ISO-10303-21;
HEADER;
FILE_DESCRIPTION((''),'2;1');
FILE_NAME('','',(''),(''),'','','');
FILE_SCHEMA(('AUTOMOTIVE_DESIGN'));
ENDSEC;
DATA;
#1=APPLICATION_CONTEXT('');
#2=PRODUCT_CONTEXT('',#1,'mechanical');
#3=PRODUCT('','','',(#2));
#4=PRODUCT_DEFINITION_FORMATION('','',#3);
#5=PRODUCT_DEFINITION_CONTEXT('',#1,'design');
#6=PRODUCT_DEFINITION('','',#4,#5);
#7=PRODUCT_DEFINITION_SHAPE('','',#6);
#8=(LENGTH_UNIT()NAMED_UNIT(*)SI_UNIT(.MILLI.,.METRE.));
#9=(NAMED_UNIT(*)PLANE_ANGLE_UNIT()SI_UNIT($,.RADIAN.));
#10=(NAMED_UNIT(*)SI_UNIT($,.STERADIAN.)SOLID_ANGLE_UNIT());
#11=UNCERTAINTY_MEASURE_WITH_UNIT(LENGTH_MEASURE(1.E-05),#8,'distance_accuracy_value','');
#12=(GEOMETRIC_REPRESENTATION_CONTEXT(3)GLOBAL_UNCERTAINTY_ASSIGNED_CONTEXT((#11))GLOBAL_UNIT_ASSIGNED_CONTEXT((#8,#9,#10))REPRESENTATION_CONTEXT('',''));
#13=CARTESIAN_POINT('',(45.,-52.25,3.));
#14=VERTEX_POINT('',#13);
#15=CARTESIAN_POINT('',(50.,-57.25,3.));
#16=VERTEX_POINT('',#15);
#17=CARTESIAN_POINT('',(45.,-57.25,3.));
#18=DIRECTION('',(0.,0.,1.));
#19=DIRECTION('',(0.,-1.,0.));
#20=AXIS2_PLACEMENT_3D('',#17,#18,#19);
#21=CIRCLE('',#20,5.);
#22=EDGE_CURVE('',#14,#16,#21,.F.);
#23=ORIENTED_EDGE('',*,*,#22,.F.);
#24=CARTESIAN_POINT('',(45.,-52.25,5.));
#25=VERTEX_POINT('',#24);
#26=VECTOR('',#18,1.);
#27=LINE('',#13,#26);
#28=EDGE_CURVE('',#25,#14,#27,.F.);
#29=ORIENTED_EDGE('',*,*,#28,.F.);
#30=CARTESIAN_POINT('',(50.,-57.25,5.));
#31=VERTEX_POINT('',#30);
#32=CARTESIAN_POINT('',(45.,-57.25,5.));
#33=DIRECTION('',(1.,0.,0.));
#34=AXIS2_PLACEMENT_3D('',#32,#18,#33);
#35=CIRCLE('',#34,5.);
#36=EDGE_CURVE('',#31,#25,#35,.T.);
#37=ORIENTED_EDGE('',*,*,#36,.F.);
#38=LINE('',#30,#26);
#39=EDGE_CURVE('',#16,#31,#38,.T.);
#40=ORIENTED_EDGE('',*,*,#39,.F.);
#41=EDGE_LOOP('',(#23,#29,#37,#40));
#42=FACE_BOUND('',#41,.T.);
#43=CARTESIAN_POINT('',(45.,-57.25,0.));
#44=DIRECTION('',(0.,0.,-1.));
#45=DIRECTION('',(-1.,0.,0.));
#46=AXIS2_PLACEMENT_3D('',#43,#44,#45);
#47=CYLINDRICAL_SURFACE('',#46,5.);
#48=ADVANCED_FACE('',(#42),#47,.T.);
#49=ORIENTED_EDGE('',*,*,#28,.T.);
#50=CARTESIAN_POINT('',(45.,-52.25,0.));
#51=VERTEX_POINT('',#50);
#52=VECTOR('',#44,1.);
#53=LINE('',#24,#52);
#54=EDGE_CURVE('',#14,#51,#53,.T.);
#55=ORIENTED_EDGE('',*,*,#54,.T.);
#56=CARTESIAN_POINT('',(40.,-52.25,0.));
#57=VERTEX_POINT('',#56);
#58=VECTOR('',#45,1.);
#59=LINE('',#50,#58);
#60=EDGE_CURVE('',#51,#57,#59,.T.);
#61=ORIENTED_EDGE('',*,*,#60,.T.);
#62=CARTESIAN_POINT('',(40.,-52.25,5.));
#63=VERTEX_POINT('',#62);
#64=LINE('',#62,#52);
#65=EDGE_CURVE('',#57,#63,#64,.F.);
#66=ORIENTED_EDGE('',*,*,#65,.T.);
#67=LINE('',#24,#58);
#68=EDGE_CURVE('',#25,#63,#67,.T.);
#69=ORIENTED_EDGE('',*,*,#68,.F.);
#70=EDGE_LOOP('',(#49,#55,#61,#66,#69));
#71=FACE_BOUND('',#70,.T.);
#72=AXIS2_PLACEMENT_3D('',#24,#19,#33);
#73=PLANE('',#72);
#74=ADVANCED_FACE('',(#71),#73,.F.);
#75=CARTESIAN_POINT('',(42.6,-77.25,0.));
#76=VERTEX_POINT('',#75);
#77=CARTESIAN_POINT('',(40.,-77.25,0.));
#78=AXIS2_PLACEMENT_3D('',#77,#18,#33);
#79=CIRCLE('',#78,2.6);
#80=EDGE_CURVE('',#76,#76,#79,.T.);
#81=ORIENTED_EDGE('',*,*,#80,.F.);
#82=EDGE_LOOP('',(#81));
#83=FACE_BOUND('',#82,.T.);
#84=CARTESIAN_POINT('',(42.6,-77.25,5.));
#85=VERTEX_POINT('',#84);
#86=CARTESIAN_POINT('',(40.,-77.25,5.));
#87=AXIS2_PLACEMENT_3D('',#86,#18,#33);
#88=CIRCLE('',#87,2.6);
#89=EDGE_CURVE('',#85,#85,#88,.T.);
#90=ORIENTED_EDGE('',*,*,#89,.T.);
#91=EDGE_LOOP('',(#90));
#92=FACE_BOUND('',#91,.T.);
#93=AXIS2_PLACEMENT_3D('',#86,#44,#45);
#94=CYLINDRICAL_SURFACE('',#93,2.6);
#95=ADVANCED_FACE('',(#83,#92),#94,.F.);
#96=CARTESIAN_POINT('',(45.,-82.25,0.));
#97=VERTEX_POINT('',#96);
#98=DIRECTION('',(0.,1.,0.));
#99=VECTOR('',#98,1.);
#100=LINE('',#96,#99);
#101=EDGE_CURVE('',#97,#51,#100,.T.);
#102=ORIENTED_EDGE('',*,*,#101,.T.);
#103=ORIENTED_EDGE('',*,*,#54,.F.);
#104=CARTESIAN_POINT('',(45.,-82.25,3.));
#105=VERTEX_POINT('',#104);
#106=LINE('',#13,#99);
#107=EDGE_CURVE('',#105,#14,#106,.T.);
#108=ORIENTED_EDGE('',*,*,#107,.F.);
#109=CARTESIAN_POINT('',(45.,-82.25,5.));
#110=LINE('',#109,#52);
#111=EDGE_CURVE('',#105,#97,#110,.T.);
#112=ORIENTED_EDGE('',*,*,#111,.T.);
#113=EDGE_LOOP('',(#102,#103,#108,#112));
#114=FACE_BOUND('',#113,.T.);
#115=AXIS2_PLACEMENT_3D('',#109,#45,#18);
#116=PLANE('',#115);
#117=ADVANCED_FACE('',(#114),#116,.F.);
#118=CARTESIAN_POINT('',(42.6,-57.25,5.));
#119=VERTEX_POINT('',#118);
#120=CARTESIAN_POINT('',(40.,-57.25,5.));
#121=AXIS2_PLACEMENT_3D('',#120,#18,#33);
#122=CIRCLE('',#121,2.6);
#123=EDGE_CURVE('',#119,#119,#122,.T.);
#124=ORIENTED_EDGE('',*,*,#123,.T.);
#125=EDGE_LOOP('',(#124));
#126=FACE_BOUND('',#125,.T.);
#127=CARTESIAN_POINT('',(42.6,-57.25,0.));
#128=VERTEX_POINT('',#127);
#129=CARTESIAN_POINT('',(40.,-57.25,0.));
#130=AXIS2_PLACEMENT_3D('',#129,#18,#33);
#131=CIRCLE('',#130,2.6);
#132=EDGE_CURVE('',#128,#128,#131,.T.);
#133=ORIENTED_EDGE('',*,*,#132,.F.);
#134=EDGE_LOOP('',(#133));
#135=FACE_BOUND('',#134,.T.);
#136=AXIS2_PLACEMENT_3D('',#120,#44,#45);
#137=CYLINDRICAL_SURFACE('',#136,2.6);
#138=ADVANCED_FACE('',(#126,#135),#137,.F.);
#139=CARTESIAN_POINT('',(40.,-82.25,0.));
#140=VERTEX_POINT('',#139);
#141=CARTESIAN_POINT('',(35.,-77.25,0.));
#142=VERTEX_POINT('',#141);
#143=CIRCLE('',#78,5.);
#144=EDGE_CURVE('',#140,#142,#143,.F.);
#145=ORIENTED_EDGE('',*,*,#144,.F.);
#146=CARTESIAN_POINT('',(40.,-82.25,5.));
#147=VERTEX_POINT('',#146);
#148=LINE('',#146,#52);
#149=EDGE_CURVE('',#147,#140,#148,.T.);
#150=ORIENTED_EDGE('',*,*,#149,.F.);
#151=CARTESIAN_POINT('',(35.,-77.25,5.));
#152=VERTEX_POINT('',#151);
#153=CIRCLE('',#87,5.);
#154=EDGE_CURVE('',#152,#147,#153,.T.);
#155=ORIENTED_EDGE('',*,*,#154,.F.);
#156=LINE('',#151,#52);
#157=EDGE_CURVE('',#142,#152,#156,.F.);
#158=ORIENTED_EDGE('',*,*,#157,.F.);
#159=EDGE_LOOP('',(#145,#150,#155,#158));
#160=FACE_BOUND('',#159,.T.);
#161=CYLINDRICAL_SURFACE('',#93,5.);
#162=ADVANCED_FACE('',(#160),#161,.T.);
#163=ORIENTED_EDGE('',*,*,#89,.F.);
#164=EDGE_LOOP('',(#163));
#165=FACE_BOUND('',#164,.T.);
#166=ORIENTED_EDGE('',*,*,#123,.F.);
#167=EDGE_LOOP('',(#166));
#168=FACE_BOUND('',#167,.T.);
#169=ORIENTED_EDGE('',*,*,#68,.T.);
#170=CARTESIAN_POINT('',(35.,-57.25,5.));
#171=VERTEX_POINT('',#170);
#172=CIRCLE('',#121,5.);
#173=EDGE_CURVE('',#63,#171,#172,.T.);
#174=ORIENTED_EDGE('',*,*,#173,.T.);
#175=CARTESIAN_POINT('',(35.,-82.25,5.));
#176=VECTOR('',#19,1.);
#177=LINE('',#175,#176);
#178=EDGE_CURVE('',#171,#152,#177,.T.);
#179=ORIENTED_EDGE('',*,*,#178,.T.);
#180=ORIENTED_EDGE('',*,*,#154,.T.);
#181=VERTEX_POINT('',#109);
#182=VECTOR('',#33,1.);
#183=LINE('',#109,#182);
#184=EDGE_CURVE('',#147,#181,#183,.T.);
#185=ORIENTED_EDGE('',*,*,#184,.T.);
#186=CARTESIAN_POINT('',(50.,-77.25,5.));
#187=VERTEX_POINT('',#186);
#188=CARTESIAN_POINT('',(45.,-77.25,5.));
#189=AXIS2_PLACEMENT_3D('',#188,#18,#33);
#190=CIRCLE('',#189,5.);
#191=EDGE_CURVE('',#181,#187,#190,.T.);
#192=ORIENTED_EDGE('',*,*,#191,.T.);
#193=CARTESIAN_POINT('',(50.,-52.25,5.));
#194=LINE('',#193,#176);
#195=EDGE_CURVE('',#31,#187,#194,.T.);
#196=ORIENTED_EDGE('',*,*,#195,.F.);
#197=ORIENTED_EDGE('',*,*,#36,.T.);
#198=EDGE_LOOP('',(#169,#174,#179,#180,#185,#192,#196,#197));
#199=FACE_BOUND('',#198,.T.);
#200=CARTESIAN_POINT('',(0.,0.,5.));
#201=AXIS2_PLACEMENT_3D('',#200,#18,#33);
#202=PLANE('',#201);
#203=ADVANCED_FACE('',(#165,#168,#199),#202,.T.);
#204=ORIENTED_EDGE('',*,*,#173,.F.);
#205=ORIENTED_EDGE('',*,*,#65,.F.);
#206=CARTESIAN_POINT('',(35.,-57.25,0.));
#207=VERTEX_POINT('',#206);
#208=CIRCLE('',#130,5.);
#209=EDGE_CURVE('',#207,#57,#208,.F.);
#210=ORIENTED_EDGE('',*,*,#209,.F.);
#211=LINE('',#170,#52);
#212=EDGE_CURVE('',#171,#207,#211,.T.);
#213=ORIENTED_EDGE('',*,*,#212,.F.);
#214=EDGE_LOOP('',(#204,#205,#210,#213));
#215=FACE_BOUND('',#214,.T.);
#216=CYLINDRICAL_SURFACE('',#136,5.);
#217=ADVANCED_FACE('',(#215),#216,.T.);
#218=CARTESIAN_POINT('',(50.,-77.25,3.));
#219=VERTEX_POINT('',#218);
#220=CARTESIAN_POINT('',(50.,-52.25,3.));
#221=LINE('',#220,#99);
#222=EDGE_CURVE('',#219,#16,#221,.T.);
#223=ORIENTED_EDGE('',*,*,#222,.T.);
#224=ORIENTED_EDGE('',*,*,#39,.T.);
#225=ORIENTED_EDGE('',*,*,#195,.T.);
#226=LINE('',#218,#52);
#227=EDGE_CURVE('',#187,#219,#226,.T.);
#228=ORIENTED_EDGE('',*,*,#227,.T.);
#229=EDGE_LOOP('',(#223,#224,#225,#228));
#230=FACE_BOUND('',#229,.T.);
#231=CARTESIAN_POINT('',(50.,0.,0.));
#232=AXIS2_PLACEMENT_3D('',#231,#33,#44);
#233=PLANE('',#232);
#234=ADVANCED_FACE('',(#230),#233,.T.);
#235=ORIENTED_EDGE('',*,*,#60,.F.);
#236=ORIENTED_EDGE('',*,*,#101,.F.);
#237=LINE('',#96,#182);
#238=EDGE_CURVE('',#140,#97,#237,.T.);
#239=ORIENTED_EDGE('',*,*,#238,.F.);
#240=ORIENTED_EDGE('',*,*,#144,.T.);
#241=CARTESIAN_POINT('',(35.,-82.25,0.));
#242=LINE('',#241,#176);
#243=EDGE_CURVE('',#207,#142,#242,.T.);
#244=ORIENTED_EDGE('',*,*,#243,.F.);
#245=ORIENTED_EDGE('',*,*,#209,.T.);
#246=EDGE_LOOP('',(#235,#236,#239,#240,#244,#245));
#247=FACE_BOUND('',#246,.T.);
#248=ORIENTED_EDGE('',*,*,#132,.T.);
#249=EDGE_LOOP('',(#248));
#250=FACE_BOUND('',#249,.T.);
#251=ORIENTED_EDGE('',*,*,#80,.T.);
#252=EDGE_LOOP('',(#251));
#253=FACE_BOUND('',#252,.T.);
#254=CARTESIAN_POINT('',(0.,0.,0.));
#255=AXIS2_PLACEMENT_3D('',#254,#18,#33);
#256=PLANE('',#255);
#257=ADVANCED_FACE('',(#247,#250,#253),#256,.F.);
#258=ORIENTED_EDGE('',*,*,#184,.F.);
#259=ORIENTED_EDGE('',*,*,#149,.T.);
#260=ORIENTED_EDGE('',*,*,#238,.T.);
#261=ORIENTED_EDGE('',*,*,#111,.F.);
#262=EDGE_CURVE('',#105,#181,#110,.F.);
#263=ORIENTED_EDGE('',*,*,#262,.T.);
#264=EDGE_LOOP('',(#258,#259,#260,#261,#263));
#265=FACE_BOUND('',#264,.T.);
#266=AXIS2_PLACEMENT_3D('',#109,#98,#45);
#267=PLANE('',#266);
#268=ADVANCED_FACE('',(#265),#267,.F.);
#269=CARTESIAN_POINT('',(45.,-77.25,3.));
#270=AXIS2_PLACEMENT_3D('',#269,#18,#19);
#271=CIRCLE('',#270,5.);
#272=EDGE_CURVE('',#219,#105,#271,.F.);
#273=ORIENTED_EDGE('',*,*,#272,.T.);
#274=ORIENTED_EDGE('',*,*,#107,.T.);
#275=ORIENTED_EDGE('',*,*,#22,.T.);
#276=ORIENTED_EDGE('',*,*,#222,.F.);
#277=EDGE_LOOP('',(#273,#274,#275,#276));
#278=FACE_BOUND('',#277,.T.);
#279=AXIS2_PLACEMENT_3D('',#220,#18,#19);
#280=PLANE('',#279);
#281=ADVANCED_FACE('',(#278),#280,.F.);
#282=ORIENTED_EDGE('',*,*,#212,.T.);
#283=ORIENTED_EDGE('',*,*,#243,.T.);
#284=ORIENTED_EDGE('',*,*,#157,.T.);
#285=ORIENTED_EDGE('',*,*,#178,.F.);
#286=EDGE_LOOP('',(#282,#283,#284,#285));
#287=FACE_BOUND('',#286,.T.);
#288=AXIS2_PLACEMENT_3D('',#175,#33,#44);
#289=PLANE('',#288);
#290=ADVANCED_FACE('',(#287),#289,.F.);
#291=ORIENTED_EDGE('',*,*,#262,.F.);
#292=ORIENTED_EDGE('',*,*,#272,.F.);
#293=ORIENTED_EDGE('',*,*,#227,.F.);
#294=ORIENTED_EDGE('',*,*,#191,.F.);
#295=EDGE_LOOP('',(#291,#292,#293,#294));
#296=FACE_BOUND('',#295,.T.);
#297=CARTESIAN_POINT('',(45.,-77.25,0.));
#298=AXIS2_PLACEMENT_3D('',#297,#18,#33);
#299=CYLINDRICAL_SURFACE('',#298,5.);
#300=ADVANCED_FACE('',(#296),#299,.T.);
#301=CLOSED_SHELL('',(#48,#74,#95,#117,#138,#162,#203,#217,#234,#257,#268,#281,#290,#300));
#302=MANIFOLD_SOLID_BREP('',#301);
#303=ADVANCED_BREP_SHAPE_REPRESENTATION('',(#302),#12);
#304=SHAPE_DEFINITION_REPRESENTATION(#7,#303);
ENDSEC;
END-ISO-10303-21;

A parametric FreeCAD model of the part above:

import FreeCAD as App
import Part
import Sketcher

V = App.Vector


def edges_at(feature, points):
    """Names of the edges that pass closest to the given points."""
    edges = feature.Shape.Edges
    near = lambda p: min(range(len(edges)), key=lambda i: edges[i].distToShape(Part.Vertex(*p))[0])
    return sorted({f"Edge{near(p) + 1}" for p in points})

doc = App.newDocument("Part")
body = doc.addObject("PartDesign::Body", "Body")

# Sketch on XY plane
sketch1 = body.newObject("Sketcher::SketchObject", "Sketch")
sketch1.AttachmentSupport = (doc.getObject("XY_Plane"), [""])
sketch1.MapMode = "FlatFace"
sketch1.addGeometry(Part.LineSegment(V(35, -52.2, 0), V(35, -82.2, 0)), False)
sketch1.addGeometry(Part.LineSegment(V(35, -82.2, 0), V(45, -82.2, 0)), False)
sketch1.addGeometry(Part.LineSegment(V(45, -82.2, 0), V(45, -52.2, 0)), False)
sketch1.addGeometry(Part.LineSegment(V(45, -52.2, 0), V(35, -52.2, 0)), False)
sketch1.addGeometry(Part.Circle(V(40, -77.2, 0), V(0, 0, 1), 2.6), False)
sketch1.addGeometry(Part.Circle(V(40, -57.2, 0), V(0, 0, 1), 2.6), False)
sketch1.addConstraint(Sketcher.Constraint("Coincident", 0, 2, 1, 1))
sketch1.addConstraint(Sketcher.Constraint("Coincident", 1, 2, 2, 1))
sketch1.addConstraint(Sketcher.Constraint("Coincident", 2, 2, 3, 1))
sketch1.addConstraint(Sketcher.Constraint("Coincident", 3, 2, 0, 1))
sketch1.addConstraint(Sketcher.Constraint("Vertical", 0))
sketch1.addConstraint(Sketcher.Constraint("Horizontal", 1))
sketch1.addConstraint(Sketcher.Constraint("Vertical", 2))
sketch1.addConstraint(Sketcher.Constraint("Horizontal", 3))
sketch1.addConstraint(Sketcher.Constraint("Equal", 4, 5))
sketch1.addConstraint(Sketcher.Constraint("Vertical", 4, 3, 5, 3))
sketch1.addConstraint(Sketcher.Constraint("Diameter", 4, 5.2))
sketch1.addConstraint(Sketcher.Constraint("DistanceX", 1, 1, 1, 2, 10.0))
sketch1.addConstraint(Sketcher.Constraint("DistanceY", 0, 2, 0, 1, 30.0))
sketch1.addConstraint(Sketcher.Constraint("DistanceX", -1, 1, 4, 3, 40.0))
sketch1.addConstraint(Sketcher.Constraint("DistanceX", -1, 1, 0, 2, 35.0))
sketch1.addConstraint(Sketcher.Constraint("DistanceY", 4, 3, 5, 3, 20.0))
sketch1.addConstraint(Sketcher.Constraint("DistanceY", 0, 2, 4, 3, 5.0))
sketch1.addConstraint(Sketcher.Constraint("DistanceY", 4, 3, -1, 1, 77.25))
pad1 = body.newObject("PartDesign::Pad", "Pad")
pad1.Profile = sketch1
pad1.Length = 5

# Sketch on YZ plane
sketch2 = body.newObject("Sketcher::SketchObject", "Sketch001")
sketch2.AttachmentSupport = (doc.getObject("YZ_Plane"), [""])
sketch2.MapMode = "FlatFace"
sketch2.AttachmentOffset = App.Placement(V(0, 0, 45), App.Rotation())
sketch2.addGeometry(Part.LineSegment(V(-52.2, 5, 0), V(-82.2, 5, 0)), False)
sketch2.addGeometry(Part.LineSegment(V(-82.2, 5, 0), V(-82.2, 3, 0)), False)
sketch2.addGeometry(Part.LineSegment(V(-82.2, 3, 0), V(-52.2, 3, 0)), False)
sketch2.addGeometry(Part.LineSegment(V(-52.2, 3, 0), V(-52.2, 5, 0)), False)
sketch2.addConstraint(Sketcher.Constraint("Coincident", 0, 2, 1, 1))
sketch2.addConstraint(Sketcher.Constraint("Coincident", 1, 2, 2, 1))
sketch2.addConstraint(Sketcher.Constraint("Coincident", 2, 2, 3, 1))
sketch2.addConstraint(Sketcher.Constraint("Coincident", 3, 2, 0, 1))
sketch2.addConstraint(Sketcher.Constraint("Horizontal", 0))
sketch2.addConstraint(Sketcher.Constraint("Vertical", 1))
sketch2.addConstraint(Sketcher.Constraint("Horizontal", 2))
sketch2.addConstraint(Sketcher.Constraint("Vertical", 3))
sketch2.addConstraint(Sketcher.Constraint("DistanceX", 0, 2, 0, 1, 30.0))
sketch2.addConstraint(Sketcher.Constraint("DistanceY", 1, 2, 1, 1, 2.0))
sketch2.addConstraint(Sketcher.Constraint("DistanceY", -1, 1, 0, 2, 5.0))
sketch2.addConstraint(Sketcher.Constraint("DistanceX", 0, 2, -1, 1, 82.25))
pad2 = body.newObject("PartDesign::Pad", "Pad001")
pad2.Profile = sketch2
pad2.Length = 5
doc.recompute()

fillet = body.newObject("PartDesign::Fillet", "Fillet")
fillet.Base = (pad2, edges_at(pad2, [
    (50, -82.25, 4),
    (50, -52.25, 4),
    (35, -52.25, 2.5),
    (35, -82.25, 2.5),
]))
fillet.Radius = 5

doc.recompute()
